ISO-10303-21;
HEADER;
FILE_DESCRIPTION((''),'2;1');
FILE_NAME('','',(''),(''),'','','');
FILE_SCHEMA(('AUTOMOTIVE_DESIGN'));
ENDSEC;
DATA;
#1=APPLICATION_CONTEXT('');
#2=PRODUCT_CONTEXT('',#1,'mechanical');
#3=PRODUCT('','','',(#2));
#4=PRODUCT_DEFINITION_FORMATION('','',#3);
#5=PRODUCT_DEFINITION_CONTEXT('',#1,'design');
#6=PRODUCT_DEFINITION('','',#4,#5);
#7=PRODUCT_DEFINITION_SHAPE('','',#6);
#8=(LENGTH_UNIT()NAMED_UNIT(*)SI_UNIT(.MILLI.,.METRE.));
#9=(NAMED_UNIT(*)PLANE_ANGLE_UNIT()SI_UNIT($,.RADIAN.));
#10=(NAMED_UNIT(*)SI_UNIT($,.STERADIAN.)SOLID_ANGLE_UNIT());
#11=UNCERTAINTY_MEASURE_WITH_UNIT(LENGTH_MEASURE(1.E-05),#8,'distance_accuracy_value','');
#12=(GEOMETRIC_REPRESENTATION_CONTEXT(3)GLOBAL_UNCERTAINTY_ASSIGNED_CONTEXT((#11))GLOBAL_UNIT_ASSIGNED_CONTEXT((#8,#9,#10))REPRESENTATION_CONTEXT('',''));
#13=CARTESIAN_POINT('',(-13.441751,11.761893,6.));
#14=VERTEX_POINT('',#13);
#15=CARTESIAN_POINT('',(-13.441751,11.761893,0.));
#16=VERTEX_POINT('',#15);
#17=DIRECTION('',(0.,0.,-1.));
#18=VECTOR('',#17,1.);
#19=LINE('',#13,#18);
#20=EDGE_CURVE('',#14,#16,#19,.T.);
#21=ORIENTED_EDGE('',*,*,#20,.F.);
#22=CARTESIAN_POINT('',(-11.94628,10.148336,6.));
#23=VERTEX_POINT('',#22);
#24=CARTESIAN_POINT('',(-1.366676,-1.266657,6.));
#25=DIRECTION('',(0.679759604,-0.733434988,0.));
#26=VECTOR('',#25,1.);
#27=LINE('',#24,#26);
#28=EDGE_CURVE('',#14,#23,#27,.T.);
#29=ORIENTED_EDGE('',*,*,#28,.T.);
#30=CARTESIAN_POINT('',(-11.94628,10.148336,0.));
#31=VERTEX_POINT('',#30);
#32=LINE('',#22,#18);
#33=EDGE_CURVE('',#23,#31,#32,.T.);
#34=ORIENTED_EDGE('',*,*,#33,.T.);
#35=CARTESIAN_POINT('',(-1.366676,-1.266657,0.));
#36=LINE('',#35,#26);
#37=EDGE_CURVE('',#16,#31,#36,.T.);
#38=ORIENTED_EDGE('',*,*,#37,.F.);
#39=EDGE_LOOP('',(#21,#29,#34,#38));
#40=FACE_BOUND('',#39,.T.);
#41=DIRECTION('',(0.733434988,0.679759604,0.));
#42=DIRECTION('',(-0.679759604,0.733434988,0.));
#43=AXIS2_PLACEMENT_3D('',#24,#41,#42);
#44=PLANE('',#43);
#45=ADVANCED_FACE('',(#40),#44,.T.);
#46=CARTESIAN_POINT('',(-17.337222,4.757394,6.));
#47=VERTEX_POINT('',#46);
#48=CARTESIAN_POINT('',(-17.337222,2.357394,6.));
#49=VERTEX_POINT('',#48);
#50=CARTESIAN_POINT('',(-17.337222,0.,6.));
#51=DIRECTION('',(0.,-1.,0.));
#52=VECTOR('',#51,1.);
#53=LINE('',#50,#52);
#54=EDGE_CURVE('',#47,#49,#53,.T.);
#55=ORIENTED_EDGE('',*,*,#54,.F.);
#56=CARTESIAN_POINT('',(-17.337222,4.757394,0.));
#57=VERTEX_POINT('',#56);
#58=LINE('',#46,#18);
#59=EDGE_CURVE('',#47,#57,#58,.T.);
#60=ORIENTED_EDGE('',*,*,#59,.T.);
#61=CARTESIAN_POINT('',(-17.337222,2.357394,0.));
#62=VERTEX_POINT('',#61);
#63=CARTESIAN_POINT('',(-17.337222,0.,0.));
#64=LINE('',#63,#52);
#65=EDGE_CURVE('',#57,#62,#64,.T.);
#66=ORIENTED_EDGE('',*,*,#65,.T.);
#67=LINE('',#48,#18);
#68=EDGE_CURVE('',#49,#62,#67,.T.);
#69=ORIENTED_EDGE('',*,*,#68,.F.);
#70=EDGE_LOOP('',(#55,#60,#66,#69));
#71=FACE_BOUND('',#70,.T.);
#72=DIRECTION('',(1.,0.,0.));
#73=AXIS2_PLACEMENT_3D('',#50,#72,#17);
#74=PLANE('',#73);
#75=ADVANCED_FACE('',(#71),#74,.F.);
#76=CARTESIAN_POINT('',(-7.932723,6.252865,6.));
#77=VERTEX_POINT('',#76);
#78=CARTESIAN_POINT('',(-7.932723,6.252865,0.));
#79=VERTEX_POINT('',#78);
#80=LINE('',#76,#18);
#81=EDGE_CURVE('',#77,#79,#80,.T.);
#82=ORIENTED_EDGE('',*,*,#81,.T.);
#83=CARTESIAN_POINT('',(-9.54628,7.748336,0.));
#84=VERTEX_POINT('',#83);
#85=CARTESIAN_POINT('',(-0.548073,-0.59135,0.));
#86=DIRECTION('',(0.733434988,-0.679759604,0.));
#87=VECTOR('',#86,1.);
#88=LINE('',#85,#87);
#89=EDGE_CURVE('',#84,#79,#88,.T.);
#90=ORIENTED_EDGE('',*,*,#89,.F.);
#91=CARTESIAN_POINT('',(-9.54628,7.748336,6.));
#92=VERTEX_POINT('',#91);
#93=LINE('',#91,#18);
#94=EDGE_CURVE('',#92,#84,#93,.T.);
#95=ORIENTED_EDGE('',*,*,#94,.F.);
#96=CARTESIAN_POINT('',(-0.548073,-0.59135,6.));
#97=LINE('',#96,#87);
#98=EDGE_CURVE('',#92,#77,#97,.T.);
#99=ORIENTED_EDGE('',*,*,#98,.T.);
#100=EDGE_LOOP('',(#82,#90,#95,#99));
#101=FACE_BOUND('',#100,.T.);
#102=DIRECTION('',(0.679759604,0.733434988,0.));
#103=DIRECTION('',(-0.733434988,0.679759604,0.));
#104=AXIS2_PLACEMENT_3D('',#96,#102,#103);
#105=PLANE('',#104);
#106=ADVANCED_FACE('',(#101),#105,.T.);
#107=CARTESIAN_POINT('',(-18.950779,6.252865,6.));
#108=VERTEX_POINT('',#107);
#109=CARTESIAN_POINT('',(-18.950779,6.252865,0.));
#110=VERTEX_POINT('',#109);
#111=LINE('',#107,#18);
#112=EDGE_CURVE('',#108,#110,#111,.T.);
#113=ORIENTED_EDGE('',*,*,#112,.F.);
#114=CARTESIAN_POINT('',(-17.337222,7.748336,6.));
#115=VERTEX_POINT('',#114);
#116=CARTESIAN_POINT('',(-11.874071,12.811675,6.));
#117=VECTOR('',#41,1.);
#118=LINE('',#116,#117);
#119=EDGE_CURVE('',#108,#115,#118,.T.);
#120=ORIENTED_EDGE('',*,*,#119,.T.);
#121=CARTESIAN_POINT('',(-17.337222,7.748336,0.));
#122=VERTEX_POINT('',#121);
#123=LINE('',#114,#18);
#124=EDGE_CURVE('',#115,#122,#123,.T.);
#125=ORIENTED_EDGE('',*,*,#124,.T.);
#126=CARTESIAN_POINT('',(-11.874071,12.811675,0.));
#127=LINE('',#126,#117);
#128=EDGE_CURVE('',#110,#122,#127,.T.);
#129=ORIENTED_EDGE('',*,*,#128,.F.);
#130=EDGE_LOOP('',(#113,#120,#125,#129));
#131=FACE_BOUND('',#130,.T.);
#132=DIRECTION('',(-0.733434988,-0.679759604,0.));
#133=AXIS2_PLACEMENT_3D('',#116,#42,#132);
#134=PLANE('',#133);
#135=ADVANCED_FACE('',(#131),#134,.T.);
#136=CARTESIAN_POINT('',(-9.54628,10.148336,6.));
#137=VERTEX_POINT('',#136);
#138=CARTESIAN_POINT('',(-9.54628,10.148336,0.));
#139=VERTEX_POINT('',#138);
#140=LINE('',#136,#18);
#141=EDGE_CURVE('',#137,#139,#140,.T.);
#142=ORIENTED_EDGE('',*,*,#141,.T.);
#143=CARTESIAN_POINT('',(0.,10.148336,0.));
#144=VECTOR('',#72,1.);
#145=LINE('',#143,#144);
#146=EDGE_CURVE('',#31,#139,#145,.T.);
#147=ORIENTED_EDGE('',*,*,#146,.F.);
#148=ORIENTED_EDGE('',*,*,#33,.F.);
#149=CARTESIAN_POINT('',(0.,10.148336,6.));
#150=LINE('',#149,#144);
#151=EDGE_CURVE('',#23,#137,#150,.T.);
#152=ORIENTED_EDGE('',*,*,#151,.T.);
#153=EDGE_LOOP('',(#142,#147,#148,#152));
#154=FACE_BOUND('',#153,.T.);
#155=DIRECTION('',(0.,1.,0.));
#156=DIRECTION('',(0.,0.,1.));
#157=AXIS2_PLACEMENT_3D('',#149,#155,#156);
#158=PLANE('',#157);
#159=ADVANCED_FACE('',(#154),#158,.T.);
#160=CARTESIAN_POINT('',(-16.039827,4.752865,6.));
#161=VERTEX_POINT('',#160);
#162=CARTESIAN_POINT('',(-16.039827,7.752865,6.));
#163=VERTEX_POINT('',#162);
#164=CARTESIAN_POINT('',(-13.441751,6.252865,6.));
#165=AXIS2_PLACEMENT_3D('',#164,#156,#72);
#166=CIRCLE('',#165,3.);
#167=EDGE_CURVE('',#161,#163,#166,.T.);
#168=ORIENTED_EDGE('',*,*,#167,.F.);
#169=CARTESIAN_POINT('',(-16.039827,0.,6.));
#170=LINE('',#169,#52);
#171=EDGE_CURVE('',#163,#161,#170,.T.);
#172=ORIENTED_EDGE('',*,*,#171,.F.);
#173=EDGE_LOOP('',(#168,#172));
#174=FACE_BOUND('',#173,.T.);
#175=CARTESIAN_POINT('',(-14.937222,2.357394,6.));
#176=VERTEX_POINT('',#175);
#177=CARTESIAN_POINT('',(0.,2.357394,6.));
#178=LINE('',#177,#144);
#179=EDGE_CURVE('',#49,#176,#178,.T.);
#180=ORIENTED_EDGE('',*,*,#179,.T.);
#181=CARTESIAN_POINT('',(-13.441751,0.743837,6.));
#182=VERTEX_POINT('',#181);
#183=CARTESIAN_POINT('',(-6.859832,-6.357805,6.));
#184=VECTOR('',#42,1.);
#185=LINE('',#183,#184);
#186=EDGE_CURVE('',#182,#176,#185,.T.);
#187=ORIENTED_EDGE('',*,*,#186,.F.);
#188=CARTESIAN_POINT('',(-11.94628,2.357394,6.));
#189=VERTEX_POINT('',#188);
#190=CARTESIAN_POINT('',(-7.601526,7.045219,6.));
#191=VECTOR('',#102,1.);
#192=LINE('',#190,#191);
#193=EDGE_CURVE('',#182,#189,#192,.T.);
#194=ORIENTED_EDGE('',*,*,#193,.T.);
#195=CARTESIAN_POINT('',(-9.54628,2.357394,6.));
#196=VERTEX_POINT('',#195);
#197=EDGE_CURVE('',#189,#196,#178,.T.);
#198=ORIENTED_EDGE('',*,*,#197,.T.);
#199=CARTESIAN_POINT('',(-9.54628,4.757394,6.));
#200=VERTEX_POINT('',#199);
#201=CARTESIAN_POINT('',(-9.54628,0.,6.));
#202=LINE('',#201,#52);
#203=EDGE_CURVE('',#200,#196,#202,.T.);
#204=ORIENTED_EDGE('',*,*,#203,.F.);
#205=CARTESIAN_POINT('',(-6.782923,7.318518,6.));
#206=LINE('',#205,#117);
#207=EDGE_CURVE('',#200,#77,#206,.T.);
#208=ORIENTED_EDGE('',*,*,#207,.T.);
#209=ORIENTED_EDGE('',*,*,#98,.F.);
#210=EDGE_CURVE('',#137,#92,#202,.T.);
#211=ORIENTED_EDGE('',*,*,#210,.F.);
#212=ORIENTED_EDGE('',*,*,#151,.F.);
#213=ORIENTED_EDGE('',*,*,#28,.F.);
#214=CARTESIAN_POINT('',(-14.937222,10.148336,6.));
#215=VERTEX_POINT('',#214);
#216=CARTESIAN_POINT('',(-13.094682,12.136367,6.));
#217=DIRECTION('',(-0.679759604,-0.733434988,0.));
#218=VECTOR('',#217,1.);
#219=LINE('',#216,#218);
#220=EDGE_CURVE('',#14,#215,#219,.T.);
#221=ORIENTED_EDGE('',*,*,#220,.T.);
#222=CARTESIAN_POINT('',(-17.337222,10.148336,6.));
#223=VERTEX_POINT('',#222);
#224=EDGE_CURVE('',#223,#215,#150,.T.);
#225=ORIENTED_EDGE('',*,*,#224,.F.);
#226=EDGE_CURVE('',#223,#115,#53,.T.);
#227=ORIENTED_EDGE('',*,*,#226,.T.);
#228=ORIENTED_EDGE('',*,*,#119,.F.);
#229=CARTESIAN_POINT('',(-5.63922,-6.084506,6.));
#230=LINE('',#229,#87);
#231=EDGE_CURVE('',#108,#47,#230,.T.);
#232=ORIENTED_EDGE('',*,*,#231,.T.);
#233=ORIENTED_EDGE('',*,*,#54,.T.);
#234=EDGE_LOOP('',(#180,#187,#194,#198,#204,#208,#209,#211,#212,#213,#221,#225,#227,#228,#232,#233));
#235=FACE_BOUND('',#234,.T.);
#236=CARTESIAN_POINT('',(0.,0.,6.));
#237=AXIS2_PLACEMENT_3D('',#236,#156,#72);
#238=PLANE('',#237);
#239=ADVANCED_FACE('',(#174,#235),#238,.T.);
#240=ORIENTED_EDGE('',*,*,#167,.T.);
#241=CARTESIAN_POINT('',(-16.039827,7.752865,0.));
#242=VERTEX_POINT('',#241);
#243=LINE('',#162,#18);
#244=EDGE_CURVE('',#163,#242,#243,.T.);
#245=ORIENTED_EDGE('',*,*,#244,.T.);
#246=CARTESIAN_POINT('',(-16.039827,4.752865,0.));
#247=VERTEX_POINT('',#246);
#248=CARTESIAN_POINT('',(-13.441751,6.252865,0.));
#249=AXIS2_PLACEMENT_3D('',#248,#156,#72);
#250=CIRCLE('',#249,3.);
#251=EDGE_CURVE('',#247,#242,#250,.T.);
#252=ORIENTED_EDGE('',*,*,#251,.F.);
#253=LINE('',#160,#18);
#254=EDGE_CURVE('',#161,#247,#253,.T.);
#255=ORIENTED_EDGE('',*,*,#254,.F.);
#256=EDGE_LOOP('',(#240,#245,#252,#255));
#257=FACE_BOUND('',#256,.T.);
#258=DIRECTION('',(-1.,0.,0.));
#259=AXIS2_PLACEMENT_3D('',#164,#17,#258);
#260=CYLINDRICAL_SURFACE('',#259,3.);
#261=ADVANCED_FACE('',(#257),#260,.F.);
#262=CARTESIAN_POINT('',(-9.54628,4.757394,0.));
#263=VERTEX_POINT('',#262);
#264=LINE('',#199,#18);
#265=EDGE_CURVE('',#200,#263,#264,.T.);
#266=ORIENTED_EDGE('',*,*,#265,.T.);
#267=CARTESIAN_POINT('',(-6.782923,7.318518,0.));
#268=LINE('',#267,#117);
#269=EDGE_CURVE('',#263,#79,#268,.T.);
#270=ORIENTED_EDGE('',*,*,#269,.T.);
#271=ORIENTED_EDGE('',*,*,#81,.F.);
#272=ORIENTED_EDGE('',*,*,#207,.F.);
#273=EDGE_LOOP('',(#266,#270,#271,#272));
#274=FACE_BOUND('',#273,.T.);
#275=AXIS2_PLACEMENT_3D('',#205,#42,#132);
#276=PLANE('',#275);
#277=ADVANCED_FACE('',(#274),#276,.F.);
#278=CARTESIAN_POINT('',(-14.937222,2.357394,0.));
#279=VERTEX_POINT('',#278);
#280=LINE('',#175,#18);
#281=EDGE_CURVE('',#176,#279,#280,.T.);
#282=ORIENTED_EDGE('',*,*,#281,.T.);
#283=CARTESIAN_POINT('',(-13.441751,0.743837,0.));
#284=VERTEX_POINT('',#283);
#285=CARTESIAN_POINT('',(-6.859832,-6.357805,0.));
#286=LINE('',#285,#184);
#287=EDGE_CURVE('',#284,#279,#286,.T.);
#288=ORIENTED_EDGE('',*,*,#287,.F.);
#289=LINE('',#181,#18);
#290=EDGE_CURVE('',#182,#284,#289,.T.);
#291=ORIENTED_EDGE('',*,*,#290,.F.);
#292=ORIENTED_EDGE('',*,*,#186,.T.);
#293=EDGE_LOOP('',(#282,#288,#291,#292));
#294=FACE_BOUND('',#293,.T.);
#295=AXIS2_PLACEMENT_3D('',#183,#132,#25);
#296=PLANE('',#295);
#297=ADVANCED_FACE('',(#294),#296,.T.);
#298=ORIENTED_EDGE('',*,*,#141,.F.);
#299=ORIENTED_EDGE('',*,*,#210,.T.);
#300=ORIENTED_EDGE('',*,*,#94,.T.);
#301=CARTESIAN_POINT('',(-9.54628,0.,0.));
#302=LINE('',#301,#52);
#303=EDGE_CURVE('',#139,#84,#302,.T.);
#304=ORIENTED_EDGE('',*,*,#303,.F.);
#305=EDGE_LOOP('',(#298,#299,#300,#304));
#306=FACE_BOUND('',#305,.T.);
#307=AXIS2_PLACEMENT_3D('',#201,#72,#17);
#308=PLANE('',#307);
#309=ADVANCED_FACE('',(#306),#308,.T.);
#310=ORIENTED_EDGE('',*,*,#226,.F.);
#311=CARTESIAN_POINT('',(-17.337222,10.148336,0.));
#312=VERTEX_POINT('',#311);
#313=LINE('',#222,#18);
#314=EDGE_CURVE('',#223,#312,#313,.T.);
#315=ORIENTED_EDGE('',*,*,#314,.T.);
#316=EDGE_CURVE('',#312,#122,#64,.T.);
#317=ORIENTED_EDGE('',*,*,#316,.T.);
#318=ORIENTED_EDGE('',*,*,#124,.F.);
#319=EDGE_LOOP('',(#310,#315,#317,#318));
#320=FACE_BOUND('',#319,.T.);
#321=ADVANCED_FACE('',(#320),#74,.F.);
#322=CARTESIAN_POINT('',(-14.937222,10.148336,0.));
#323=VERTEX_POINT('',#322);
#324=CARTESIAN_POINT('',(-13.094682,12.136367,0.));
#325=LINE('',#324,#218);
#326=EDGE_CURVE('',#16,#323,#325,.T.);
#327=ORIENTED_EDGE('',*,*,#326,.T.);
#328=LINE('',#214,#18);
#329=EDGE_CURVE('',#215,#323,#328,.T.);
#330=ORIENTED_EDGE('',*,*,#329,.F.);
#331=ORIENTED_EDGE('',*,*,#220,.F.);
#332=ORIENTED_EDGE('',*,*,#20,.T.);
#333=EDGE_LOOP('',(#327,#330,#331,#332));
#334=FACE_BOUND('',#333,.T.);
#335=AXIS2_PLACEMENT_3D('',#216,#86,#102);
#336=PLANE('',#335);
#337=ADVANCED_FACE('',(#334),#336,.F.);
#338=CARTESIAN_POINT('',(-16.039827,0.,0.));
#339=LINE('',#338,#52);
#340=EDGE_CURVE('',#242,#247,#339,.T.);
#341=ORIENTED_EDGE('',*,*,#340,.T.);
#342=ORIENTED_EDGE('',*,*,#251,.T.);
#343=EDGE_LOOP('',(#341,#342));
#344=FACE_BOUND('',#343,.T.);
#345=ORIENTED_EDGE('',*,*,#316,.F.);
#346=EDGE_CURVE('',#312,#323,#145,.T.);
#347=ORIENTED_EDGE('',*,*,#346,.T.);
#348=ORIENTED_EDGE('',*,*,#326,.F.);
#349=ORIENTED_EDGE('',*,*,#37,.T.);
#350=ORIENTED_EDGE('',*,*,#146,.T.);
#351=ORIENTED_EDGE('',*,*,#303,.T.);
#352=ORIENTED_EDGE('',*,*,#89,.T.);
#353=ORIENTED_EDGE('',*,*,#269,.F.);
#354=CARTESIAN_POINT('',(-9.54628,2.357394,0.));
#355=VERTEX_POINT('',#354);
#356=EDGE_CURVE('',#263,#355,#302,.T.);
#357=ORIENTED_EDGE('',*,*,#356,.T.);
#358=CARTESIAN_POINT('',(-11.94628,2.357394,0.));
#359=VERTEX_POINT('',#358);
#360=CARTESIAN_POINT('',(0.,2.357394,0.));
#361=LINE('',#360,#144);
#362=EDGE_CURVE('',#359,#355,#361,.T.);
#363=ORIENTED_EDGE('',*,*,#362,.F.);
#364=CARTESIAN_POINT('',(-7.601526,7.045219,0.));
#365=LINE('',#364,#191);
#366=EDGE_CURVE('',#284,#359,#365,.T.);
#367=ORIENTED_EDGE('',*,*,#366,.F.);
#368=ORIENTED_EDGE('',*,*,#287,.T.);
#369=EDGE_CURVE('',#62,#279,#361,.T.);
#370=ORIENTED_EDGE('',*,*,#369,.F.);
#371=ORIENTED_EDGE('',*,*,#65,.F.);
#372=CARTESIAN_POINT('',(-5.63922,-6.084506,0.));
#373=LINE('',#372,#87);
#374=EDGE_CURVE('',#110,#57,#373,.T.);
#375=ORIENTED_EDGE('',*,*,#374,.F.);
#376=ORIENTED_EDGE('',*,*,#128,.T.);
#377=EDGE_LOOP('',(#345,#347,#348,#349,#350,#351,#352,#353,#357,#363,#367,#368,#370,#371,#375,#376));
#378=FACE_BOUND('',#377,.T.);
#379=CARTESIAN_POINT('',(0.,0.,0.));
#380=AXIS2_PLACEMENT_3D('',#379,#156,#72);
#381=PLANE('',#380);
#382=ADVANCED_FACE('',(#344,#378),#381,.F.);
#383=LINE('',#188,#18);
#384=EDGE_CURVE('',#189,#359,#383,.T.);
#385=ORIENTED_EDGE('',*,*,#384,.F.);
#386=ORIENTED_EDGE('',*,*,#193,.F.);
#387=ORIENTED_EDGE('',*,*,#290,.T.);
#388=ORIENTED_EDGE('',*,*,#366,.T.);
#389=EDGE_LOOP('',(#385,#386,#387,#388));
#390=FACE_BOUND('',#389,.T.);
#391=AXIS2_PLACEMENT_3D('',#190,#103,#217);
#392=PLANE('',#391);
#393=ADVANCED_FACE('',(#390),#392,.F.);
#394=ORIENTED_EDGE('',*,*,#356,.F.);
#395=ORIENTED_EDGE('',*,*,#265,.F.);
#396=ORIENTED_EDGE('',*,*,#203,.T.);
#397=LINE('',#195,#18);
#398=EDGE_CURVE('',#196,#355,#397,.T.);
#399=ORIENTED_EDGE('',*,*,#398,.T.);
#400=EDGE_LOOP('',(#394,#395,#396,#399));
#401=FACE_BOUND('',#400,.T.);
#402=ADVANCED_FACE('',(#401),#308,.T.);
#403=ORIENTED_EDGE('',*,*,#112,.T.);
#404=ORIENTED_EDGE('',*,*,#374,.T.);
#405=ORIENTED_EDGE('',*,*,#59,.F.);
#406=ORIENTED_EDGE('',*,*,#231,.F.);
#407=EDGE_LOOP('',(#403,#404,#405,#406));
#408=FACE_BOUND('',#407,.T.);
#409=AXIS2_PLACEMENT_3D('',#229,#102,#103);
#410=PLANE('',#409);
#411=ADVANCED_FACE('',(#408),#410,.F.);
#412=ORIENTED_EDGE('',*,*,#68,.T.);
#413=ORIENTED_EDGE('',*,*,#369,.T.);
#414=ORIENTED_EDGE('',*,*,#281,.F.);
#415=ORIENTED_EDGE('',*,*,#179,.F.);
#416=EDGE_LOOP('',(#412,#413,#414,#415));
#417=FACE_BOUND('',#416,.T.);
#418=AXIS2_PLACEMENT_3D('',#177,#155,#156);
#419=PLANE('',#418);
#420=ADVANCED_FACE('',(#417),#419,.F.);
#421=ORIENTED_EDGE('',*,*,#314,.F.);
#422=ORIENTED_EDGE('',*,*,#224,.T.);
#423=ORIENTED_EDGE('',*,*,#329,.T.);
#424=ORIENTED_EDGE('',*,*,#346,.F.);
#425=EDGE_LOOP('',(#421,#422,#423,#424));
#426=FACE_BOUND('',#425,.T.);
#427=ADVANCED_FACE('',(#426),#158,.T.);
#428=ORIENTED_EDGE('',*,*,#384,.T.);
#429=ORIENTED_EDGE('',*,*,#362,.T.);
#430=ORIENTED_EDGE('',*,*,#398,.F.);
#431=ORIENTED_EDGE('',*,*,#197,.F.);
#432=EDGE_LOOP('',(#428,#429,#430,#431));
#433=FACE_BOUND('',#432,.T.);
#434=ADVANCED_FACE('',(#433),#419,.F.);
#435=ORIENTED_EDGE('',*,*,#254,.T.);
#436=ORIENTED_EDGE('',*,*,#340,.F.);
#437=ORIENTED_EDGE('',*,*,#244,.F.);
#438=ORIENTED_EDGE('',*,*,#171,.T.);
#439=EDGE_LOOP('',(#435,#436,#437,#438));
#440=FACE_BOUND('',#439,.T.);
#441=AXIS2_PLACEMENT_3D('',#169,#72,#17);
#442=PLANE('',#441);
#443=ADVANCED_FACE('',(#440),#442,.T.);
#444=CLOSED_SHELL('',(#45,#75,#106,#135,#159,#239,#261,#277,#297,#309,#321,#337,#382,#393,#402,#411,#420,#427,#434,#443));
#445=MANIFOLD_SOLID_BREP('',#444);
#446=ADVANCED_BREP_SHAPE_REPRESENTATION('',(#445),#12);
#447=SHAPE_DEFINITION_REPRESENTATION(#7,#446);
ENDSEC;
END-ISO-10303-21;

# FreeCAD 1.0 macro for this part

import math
import FreeCAD as App
import Part
import Sketcher
Q = App.Units.Quantity

doc = App.newDocument("Part")
body = doc.addObject("PartDesign::Body", "Body")

# Sketch on XY plane
sketch1 = body.newObject("Sketcher::SketchObject", "Sketch")
sketch1.AttachmentSupport = (doc.getObject("XY_Plane"), [""])
sketch1.MapMode = "FlatFace"
sketch1.addGeometry([
    Part.LineSegment(App.Vector(-17.3, 10.1, 0), App.Vector(-17.3, 7.7, 0)),  # 0
    Part.LineSegment(App.Vector(-17.3, 7.7, 0), App.Vector(-19, 6.3, 0)),  # 1
    Part.LineSegment(App.Vector(-19, 6.3, 0), App.Vector(-17.3, 4.8, 0)),  # 2
    Part.LineSegment(App.Vector(-17.3, 4.8, 0), App.Vector(-17.3, 2.4, 0)),  # 3
    Part.LineSegment(App.Vector(-17.3, 2.4, 0), App.Vector(-14.9, 2.4, 0)),  # 4
    Part.LineSegment(App.Vector(-14.9, 2.4, 0), App.Vector(-13.4, 0.7, 0)),  # 5
    Part.LineSegment(App.Vector(-13.4, 0.7, 0), App.Vector(-11.9, 2.4, 0)),  # 6
    Part.LineSegment(App.Vector(-11.9, 2.4, 0), App.Vector(-9.5, 2.4, 0)),  # 7
    Part.LineSegment(App.Vector(-9.5, 2.4, 0), App.Vector(-9.5, 4.8, 0)),  # 8
    Part.LineSegment(App.Vector(-9.5, 4.8, 0), App.Vector(-7.9, 6.3, 0)),  # 9
    Part.LineSegment(App.Vector(-7.9, 6.3, 0), App.Vector(-9.5, 7.7, 0)),  # 10
    Part.LineSegment(App.Vector(-9.5, 7.7, 0), App.Vector(-9.5, 10.1, 0)),  # 11
    Part.LineSegment(App.Vector(-9.5, 10.1, 0), App.Vector(-11.9, 10.1, 0)),  # 12
    Part.LineSegment(App.Vector(-11.9, 10.1, 0), App.Vector(-13.4, 11.8, 0)),  # 13
    Part.LineSegment(App.Vector(-13.4, 11.8, 0), App.Vector(-14.9, 10.1, 0)),  # 14
    Part.LineSegment(App.Vector(-14.9, 10.1, 0), App.Vector(-17.3, 10.1, 0)),  # 15
    Part.ArcOfCircle(Part.Circle(App.Vector(-13.4, 6.3, 0), App.Vector(0, 0, 1), 3), math.radians(-150), math.radians(150)),  # 16
    Part.LineSegment(App.Vector(-16, 4.8, 0), App.Vector(-16, 7.8, 0)),  # 17
], False)
sketch1.addConstraint([
    Sketcher.Constraint("Coincident", 0, 2, 1, 1),
    Sketcher.Constraint("Coincident", 1, 2, 2, 1),
    Sketcher.Constraint("Coincident", 2, 2, 3, 1),
    Sketcher.Constraint("Coincident", 3, 2, 4, 1),
    Sketcher.Constraint("Coincident", 4, 2, 5, 1),
    Sketcher.Constraint("Coincident", 5, 2, 6, 1),
    Sketcher.Constraint("Coincident", 6, 2, 7, 1),
    Sketcher.Constraint("Coincident", 7, 2, 8, 1),
    Sketcher.Constraint("Coincident", 8, 2, 9, 1),
    Sketcher.Constraint("Coincident", 9, 2, 10, 1),
    Sketcher.Constraint("Coincident", 10, 2, 11, 1),
    Sketcher.Constraint("Coincident", 11, 2, 12, 1),
    Sketcher.Constraint("Coincident", 12, 2, 13, 1),
    Sketcher.Constraint("Coincident", 13, 2, 14, 1),
    Sketcher.Constraint("Coincident", 14, 2, 15, 1),
    Sketcher.Constraint("Coincident", 15, 2, 0, 1),
    Sketcher.Constraint("Coincident", 16, 1, 17, 1),
    Sketcher.Constraint("Coincident", 17, 2, 16, 2),
    Sketcher.Constraint("Vertical", 0),
    Sketcher.Constraint("Vertical", 3),
    Sketcher.Constraint("Horizontal", 4),
    Sketcher.Constraint("Horizontal", 7),
    Sketcher.Constraint("Vertical", 8),
    Sketcher.Constraint("Vertical", 11),
    Sketcher.Constraint("Horizontal", 12),
    Sketcher.Constraint("Horizontal", 15),
    Sketcher.Constraint("Vertical", 17),
    Sketcher.Constraint("Perpendicular", 1, 5),
    Sketcher.Constraint("Perpendicular", 2, 6),
    Sketcher.Constraint("Perpendicular", 5, 9),
    Sketcher.Constraint("Perpendicular", 6, 10),
    Sketcher.Constraint("Perpendicular", 9, 13),
    Sketcher.Constraint("Perpendicular", 10, 14),
    Sketcher.Constraint("Horizontal", 16, 3, 1, 2),
    Sketcher.Constraint("Horizontal", 4, 2, 6, 2),
    Sketcher.Constraint("Horizontal", 2, 2, 8, 2),
    Sketcher.Constraint("Horizontal", 1, 2, 9, 2),
    Sketcher.Constraint("Horizontal", 0, 2, 10, 2),
    Sketcher.Constraint("Horizontal", 12, 2, 14, 2),
    Sketcher.Constraint("Vertical", 0, 2, 2, 2),
    Sketcher.Constraint("Vertical", 16, 3, 5, 2),
    Sketcher.Constraint("Vertical", 8, 2, 10, 2),
    Sketcher.Constraint("Vertical", 6, 2, 12, 2),
    Sketcher.Constraint("Vertical", 5, 2, 13, 2),
    Sketcher.Constraint("Equal", 4, 7),
    Sketcher.Constraint("Equal", 15, 0),
    Sketcher.Constraint("Equal", 0, 3),
    Sketcher.Constraint("Equal", 2, 5),
    Sketcher.Constraint("Radius", 16, Q("3 mm")),
    Sketcher.Constraint("DistanceY", 17, 1, 17, 2, Q("3 mm")),
    Sketcher.Constraint("DistanceX", 4, 1, 4, 2, Q("2.4 mm")),
    Sketcher.Constraint("Distance", 1, Q("2.2 mm")),
    Sketcher.Constraint("DistanceX", 16, 3, -1, 1, Q("13.441751 mm")),
    Sketcher.Constraint("DistanceX", 0, 2, -1, 1, Q("17.337222 mm")),
    Sketcher.Constraint("DistanceY", -1, 1, 16, 3, Q("6.252865 mm")),
])
pad1 = body.newObject("PartDesign::Pad", "Pad")
pad1.Profile = sketch1
pad1.Length = 6

doc.recompute()
